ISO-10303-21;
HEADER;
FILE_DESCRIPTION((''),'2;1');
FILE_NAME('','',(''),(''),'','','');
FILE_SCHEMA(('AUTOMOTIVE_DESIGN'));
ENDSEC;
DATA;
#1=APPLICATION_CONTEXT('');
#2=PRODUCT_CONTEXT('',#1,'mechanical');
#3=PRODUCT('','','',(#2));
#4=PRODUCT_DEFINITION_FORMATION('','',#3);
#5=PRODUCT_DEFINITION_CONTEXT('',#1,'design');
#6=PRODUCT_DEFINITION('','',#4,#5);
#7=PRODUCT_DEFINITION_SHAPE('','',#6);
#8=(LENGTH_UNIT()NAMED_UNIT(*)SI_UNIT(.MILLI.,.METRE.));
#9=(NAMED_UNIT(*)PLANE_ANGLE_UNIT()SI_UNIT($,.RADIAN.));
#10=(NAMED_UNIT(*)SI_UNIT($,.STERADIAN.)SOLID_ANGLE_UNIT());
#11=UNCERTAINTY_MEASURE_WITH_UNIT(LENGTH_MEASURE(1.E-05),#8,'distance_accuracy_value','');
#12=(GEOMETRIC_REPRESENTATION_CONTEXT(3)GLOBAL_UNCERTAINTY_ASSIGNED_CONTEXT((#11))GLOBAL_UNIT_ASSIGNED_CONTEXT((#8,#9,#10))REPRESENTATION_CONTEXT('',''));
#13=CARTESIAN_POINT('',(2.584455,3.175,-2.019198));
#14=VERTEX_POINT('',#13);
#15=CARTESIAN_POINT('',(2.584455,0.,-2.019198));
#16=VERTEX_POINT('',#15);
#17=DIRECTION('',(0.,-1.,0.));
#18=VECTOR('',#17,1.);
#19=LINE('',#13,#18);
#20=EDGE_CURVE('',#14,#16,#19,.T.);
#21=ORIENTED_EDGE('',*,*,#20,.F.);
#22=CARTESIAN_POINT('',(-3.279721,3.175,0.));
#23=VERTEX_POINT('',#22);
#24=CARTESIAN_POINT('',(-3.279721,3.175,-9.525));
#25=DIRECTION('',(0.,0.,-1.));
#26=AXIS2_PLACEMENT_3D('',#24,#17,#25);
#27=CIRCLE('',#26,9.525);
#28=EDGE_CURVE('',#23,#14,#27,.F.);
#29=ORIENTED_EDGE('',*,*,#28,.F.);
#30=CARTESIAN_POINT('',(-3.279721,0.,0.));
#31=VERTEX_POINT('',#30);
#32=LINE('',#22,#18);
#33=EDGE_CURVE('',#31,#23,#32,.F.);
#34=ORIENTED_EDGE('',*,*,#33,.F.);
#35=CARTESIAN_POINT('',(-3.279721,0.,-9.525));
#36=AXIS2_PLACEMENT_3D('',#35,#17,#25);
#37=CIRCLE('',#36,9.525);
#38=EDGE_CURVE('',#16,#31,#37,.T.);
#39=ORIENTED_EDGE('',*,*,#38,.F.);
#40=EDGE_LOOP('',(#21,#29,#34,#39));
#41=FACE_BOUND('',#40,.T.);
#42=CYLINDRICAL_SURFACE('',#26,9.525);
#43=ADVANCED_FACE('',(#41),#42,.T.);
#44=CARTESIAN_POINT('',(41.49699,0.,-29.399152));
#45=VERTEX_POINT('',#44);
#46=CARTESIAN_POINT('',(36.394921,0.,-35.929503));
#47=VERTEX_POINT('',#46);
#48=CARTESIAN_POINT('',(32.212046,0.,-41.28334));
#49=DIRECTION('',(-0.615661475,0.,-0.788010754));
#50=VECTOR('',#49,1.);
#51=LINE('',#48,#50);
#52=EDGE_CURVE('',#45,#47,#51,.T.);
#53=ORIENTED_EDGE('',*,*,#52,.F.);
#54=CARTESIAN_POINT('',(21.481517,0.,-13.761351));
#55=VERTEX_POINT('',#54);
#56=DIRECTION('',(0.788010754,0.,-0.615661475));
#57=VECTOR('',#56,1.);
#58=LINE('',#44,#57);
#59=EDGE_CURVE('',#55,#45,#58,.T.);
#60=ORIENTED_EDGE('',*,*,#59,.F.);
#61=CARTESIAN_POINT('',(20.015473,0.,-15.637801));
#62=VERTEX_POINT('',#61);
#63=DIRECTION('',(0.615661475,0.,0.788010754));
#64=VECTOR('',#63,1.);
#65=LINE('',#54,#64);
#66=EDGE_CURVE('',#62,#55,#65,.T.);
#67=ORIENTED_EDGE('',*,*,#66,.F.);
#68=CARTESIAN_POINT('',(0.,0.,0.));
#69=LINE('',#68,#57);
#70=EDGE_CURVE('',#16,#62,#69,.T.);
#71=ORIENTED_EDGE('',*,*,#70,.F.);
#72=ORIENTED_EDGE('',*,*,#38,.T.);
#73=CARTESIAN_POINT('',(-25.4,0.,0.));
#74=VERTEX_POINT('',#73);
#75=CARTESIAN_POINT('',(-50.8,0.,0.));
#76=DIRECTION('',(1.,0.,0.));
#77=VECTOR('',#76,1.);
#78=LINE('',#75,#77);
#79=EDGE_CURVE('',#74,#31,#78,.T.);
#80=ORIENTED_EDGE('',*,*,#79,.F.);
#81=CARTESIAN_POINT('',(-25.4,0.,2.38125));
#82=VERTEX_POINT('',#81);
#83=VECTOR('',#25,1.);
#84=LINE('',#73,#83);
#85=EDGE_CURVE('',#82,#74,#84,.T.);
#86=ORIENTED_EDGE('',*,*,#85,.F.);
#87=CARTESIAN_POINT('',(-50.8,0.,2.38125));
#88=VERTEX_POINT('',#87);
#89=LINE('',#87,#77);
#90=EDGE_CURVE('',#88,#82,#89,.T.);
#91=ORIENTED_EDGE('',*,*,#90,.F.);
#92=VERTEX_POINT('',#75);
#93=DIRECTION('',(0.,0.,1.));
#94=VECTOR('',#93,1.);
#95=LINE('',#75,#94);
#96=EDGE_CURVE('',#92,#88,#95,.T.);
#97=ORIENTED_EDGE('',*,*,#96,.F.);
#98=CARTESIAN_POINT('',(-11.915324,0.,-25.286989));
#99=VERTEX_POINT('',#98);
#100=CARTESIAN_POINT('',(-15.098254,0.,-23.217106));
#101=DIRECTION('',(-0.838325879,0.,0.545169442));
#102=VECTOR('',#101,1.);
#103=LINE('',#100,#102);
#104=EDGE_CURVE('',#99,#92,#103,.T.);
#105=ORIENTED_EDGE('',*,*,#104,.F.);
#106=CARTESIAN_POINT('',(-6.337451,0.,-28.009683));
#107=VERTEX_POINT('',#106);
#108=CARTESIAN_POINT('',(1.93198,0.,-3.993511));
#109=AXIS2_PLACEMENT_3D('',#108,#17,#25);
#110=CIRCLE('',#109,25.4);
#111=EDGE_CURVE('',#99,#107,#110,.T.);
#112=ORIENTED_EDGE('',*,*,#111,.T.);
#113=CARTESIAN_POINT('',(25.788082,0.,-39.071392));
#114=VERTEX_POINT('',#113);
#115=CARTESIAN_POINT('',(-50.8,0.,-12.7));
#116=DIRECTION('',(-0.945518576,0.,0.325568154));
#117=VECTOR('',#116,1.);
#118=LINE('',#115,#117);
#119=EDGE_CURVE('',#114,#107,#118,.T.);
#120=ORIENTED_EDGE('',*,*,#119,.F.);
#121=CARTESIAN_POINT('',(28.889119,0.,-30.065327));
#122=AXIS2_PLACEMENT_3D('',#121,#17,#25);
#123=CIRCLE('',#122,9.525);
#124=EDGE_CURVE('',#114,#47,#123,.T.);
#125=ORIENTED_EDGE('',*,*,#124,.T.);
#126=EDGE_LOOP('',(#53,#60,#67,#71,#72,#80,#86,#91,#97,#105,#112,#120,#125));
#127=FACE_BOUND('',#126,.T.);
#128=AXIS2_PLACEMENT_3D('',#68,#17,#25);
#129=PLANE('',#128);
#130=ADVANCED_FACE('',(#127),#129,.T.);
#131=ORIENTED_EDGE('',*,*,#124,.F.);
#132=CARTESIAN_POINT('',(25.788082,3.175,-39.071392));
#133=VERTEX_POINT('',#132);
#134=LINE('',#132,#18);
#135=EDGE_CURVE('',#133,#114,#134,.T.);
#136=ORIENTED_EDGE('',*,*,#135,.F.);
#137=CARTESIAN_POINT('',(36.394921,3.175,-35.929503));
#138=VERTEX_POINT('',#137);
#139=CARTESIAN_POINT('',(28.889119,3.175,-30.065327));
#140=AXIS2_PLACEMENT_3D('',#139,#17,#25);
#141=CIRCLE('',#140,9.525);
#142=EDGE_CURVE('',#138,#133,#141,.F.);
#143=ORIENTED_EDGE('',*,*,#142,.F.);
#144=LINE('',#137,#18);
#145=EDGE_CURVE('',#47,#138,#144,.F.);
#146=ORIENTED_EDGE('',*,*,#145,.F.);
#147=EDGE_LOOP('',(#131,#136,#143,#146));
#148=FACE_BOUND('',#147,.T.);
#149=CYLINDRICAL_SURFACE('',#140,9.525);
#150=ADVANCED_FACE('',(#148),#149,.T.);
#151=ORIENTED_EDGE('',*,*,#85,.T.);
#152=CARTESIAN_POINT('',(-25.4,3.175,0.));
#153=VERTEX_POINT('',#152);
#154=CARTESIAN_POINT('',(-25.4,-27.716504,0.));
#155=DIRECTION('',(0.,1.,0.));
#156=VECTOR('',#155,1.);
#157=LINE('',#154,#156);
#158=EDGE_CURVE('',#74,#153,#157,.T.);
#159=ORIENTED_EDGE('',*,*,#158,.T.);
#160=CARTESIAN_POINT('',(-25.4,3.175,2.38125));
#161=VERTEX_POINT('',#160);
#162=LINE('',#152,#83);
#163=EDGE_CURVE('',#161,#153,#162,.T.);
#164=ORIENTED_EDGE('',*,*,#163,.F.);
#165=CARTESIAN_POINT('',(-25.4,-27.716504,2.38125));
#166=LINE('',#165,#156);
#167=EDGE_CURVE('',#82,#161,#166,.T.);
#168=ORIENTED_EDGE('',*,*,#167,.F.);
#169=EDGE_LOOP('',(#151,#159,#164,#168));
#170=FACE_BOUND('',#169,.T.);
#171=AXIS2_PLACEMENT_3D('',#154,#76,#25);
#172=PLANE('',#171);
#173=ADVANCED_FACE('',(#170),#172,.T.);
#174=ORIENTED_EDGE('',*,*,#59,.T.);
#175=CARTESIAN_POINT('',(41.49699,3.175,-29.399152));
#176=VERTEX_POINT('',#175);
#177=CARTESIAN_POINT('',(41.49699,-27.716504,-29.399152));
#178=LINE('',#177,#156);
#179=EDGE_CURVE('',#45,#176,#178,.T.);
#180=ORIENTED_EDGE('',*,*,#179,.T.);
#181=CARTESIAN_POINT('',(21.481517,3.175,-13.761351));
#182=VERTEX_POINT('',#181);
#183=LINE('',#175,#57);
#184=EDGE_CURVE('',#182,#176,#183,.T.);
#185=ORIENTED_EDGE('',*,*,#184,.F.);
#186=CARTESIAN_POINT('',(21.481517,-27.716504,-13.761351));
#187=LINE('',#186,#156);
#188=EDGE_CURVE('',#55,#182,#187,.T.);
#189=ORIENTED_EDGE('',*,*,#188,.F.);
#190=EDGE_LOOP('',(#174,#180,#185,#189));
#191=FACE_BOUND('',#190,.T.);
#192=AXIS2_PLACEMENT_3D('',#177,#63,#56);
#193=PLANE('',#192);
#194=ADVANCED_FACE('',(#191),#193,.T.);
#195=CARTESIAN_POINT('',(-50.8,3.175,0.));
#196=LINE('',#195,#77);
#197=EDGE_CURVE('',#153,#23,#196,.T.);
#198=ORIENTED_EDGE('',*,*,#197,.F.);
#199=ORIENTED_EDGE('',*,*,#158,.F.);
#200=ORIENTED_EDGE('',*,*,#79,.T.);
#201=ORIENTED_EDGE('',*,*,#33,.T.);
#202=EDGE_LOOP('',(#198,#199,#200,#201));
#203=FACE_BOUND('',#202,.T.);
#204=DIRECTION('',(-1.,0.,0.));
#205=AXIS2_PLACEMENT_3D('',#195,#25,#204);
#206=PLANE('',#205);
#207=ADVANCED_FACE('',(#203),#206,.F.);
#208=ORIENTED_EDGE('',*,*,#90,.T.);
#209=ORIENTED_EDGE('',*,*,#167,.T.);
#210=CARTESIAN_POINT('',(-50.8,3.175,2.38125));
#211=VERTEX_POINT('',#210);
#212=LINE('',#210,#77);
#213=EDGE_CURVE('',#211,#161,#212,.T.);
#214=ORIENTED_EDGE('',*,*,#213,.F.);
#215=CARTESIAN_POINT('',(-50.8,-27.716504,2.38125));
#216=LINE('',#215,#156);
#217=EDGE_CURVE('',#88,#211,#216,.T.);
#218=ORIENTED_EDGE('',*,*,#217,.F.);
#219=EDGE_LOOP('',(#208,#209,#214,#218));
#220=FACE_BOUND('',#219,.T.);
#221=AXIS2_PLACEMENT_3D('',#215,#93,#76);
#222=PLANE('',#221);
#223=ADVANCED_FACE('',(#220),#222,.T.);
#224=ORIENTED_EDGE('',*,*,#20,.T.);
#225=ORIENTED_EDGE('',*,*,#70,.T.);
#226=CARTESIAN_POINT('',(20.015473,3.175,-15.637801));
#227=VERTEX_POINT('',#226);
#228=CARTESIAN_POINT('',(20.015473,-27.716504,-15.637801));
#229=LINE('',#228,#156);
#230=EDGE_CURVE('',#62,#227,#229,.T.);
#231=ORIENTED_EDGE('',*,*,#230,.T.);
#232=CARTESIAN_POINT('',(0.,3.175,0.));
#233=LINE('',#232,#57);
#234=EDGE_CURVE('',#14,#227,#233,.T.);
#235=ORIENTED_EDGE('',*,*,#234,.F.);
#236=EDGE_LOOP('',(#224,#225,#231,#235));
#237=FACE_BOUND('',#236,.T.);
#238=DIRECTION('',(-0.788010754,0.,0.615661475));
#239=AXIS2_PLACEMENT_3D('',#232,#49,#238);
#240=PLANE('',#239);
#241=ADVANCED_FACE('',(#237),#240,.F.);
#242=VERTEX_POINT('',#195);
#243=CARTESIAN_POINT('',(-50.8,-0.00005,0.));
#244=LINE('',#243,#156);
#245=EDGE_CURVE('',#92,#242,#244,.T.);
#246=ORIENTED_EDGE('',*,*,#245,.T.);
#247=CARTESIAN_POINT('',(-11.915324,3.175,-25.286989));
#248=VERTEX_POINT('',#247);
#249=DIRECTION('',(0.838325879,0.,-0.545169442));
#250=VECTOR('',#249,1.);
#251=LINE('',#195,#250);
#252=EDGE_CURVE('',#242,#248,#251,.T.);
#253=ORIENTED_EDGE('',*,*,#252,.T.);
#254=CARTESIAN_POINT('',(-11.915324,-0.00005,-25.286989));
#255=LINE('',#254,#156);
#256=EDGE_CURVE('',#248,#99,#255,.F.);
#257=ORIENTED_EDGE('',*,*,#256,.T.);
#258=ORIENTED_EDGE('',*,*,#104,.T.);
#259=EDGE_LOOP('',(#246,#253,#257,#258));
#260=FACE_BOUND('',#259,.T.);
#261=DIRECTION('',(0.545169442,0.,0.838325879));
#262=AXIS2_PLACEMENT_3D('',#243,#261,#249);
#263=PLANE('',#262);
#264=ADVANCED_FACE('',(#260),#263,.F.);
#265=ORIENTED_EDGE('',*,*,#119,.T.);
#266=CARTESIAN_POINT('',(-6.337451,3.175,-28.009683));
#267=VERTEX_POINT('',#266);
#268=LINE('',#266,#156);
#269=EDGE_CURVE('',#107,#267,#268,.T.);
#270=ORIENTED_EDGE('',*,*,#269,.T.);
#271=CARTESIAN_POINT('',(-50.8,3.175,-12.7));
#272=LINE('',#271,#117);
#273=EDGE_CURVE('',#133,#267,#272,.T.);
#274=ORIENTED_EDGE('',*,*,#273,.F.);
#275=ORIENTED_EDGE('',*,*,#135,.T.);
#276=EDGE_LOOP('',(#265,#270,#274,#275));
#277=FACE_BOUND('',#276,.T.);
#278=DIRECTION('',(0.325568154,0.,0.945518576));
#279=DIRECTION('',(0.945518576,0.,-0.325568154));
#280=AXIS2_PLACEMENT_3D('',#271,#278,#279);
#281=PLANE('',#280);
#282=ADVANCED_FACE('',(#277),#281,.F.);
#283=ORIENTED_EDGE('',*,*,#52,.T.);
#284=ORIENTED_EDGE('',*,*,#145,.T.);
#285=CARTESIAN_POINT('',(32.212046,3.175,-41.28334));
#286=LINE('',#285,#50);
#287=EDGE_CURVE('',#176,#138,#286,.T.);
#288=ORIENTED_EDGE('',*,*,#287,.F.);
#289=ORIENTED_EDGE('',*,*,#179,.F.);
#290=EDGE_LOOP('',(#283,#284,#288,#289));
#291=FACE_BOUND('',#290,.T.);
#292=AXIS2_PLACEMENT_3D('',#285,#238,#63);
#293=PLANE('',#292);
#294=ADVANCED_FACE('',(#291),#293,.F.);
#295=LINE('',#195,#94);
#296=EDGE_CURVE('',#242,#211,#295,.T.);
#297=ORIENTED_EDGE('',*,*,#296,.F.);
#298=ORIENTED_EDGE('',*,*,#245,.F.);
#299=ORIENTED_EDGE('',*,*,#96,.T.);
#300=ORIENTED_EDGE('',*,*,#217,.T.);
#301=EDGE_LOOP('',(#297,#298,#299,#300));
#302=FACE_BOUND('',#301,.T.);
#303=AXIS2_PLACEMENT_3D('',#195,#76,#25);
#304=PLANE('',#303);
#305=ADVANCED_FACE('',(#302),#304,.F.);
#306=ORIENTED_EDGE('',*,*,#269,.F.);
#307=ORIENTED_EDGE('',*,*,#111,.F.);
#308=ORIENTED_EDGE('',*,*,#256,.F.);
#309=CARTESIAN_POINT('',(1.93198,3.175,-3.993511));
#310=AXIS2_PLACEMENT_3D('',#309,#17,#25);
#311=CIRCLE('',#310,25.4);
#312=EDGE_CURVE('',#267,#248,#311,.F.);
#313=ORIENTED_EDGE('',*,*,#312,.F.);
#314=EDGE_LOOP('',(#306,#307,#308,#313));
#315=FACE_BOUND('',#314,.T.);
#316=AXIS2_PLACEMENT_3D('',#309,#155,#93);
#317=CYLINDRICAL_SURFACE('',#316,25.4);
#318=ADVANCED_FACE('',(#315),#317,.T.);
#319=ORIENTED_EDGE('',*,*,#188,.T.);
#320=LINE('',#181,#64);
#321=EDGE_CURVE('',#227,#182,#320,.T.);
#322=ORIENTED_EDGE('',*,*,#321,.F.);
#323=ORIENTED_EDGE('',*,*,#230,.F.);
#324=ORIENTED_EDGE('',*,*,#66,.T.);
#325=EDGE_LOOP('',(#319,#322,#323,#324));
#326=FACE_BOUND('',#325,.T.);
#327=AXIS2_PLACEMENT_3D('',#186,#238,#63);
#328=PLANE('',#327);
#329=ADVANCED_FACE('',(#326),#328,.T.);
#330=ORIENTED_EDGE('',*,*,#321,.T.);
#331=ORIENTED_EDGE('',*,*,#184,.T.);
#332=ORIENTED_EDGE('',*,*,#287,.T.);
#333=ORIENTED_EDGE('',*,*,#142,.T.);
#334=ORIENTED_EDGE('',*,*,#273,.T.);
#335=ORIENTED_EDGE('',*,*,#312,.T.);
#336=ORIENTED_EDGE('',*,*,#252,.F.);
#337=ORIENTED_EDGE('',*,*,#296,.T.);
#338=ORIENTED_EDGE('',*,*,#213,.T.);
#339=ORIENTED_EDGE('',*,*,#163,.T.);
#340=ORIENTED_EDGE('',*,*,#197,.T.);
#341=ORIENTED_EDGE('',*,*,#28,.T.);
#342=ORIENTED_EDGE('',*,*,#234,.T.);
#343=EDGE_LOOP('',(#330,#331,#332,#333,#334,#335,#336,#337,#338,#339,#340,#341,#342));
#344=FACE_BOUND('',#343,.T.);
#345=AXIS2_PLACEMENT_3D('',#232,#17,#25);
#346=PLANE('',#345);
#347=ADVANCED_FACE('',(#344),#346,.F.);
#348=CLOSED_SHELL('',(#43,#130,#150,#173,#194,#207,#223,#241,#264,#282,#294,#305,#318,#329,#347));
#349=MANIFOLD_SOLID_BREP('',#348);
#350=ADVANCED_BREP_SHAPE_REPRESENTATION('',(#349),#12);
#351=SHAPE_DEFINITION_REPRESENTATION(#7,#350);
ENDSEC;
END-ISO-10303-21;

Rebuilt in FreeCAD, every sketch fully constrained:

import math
import FreeCAD as App
import Part
import Sketcher
Q = App.Units.Quantity


def edges_at(feature, points):
    """Names of the edges that pass closest to the given points."""
    edges = feature.Shape.Edges
    near = lambda p: min(range(len(edges)), key=lambda i: edges[i].distToShape(Part.Vertex(*p))[0])
    return sorted({f"Edge{near(p) + 1}" for p in points})


def add_polygon(sketch, points):
    """Adds a closed chain of lines whose ends are joined by coincident constraints."""
    first, n = sketch.GeometryCount, len(points)
    for a, b in zip(points, points[1:] + points[:1]):
        sketch.addGeometry(Part.LineSegment(App.Vector(*a, 0), App.Vector(*b, 0)), False)
    for i in range(n):
        sketch.addConstraint(Sketcher.Constraint("Coincident", first + i, 2, first + (i + 1) % n, 1))

doc = App.newDocument("Part")
params = doc.addObject("Spreadsheet::Sheet", "Params")
for row, (alias, value) in enumerate([
    ("sketch1_width", "2 in"),
    ("sketch1_length", "2 in"),
    ("sketch1_height", "0.5 in"),
    ("pad1_length", "0.125 in"),
    ("sketch2_width", "1 in"),
    ("sketch2_length", "1 in"),
    ("sketch2_height", "0.09375 in"),
    ("sketch2_length2", "0.09375 in"),
    ("pad2_length", "0.125 in"),
    ("fillet_radius", "0.375 in"),
    ("sketch3_radius", "0.375 in"),
    ("fillet2_radius", "1 in"),
], start=1):
    params.set(f"A{row}", alias)
    params.set(f"B{row}", "=" + value)
    params.setAlias(f"B{row}", alias)

body = doc.addObject("PartDesign::Body", "Body")

# Sketch on XZ plane
sketch1 = body.newObject("Sketcher::SketchObject", "Sketch")
sketch1.AttachmentSupport = (doc.getObject("XZ_Plane"), [""])
sketch1.MapMode = "FlatFace"
add_polygon(sketch1, [(-51, 0), (0, 0), (40, -31), (32, -41), (-51, -13)])  # lines 0-4
sketch1.addConstraint([
    Sketcher.Constraint("Horizontal", 0),
    Sketcher.Constraint("Vertical", 4),
    Sketcher.Constraint("Coincident", 0, 2, -1, 1),
    Sketcher.Constraint("Perpendicular", 1, 2),
    Sketcher.Constraint("DistanceX", 0, 1, 0, 2, Q("2 in")),
    Sketcher.Constraint("Distance", 1, Q("2 in")),
    Sketcher.Constraint("DistanceY", 4, 1, 4, 2, Q("0.5 in")),
    Sketcher.Constraint("Angle", 1, Q("-38 deg")),
    Sketcher.Constraint("Angle", 3, Q("161 deg")),
])
sketch1.setExpression("Constraints[9]", "Params.sketch1_width")
sketch1.setExpression("Constraints[10]", "Params.sketch1_length")
sketch1.setExpression("Constraints[11]", "Params.sketch1_height")
pad1 = body.newObject("PartDesign::Pad", "Pad")
pad1.Profile = sketch1
pad1.setExpression("Length", "Params.pad1_length")
pad1.Reversed = True

# Sketch on XZ plane
sketch2 = body.newObject("Sketcher::SketchObject", "Sketch001")
sketch2.AttachmentSupport = (doc.getObject("XZ_Plane"), [""])
sketch2.MapMode = "FlatFace"
sketch2.AttachmentOffset = App.Placement(App.Vector(0, 0, -0.125 * 25.4), App.Rotation())
add_polygon(sketch2, [(40, -31.3), (20, -15.6), (21.5, -13.8), (41.5, -29.4)])  # lines 0-3
add_polygon(sketch2, [(-50.8, 0), (-50.8, 2.4), (-25.4, 2.4), (-25.4, 0)])  # lines 4-7
sketch2.addConstraint([
    Sketcher.Constraint("Vertical", 4),
    Sketcher.Constraint("Horizontal", 5),
    Sketcher.Constraint("Vertical", 6),
    Sketcher.Constraint("Horizontal", 7),
    Sketcher.Constraint("PointOnObject", 6, 2, -1),
    Sketcher.Constraint("Perpendicular", 0, 1),
    Sketcher.Constraint("Perpendicular", 1, 2),
    Sketcher.Constraint("Perpendicular", 2, 3),
    Sketcher.Constraint("DistanceX", 5, 1, 5, 2, Q("1 in")),
    Sketcher.Constraint("Distance", 0, Q("1 in")),
    Sketcher.Constraint("DistanceX", 4, 2, -1, 1, Q("2 in")),
    Sketcher.Constraint("Angle", 0, Q("142 deg")),
    Sketcher.Constraint("DistanceY", 4, 1, 4, 2, Q("0.09375 in")),
    Sketcher.Constraint("Distance", 1, Q("0.09375 in")),
    Sketcher.Constraint("DistanceY", 0, 2, -1, 1, 15.637801),
    Sketcher.Constraint("DistanceX", -1, 1, 2, 2, 41.49699),
])
sketch2.setExpression("Constraints[16]", "Params.sketch2_width")
sketch2.setExpression("Constraints[17]", "Params.sketch2_length")
sketch2.setExpression("Constraints[20]", "Params.sketch2_height")
sketch2.setExpression("Constraints[21]", "Params.sketch2_length2")
pad2 = body.newObject("PartDesign::Pad", "Pad001")
pad2.Profile = sketch2
pad2.setExpression("Length", "Params.pad2_length")
doc.recompute()

fillet = body.newObject("PartDesign::Fillet", "Fillet")
fillet.Base = (pad2, edges_at(pad2, [(-50.8, 1.587, -12.7), (32.212, 1.587, -41.283), (0, 1.587, 0)]))
fillet.setExpression("Radius", "Params.fillet_radius")

# Sketch on XZ plane
sketch3 = body.newObject("Sketcher::SketchObject", "Sketch002")
sketch3.AttachmentSupport = (doc.getObject("XZ_Plane"), [""])
sketch3.MapMode = "FlatFace"
sketch3.AttachmentOffset = App.Placement(App.Vector(0, 0, -0.125 * 25.4), App.Rotation())
sketch3.addGeometry([
    Part.LineSegment(App.Vector(-51, 0, 0), App.Vector(-9, -27, 0)),
    Part.LineSegment(App.Vector(-9, -27, 0), App.Vector(-44, -15, 0)),
    Part.ArcOfCircle(Part.Circle(App.Vector(-41, -6, 0), App.Vector(0, 0, 1), 10), math.radians(-180), math.radians(-109)),
    Part.LineSegment(App.Vector(-51, -6, 0), App.Vector(-51, 0, 0)),
], False)
sketch3.addConstraint([
    Sketcher.Constraint("Coincident", 0, 2, 1, 1),
    Sketcher.Constraint("Tangent", 1, 2, 2, 2),
    Sketcher.Constraint("Tangent", 2, 1, 3, 1),
    Sketcher.Constraint("Coincident", 3, 2, 0, 1),
    Sketcher.Constraint("Vertical", 3),
    Sketcher.Constraint("PointOnObject", 3, 2, -1),
    Sketcher.Constraint("DistanceX", 2, 1, -1, 1, Q("2 in")),
    Sketcher.Constraint("Angle", 1, Q("161 deg")),
    Sketcher.Constraint("Radius", 2, Q("0.375 in")),
    Sketcher.Constraint("Distance", 1, 37.103512),
    Sketcher.Constraint("DistanceY", 3, 1, 3, 2, 5.905884),
])
sketch3.setExpression("Constraints[8]", "Params.sketch3_radius")
pocket1 = body.newObject("PartDesign::Pocket", "Pocket")
pocket1.Profile = sketch3
pocket1.Type = "ThroughAll"
pocket1.Reversed = True
doc.recompute()

fillet2 = body.newObject("PartDesign::Fillet", "Fillet001")
fillet2.Base = (pocket1, edges_at(pocket1, [(-9.294, 1.587, -26.992)]))
fillet2.setExpression("Radius", "Params.fillet2_radius")

doc.recompute()
